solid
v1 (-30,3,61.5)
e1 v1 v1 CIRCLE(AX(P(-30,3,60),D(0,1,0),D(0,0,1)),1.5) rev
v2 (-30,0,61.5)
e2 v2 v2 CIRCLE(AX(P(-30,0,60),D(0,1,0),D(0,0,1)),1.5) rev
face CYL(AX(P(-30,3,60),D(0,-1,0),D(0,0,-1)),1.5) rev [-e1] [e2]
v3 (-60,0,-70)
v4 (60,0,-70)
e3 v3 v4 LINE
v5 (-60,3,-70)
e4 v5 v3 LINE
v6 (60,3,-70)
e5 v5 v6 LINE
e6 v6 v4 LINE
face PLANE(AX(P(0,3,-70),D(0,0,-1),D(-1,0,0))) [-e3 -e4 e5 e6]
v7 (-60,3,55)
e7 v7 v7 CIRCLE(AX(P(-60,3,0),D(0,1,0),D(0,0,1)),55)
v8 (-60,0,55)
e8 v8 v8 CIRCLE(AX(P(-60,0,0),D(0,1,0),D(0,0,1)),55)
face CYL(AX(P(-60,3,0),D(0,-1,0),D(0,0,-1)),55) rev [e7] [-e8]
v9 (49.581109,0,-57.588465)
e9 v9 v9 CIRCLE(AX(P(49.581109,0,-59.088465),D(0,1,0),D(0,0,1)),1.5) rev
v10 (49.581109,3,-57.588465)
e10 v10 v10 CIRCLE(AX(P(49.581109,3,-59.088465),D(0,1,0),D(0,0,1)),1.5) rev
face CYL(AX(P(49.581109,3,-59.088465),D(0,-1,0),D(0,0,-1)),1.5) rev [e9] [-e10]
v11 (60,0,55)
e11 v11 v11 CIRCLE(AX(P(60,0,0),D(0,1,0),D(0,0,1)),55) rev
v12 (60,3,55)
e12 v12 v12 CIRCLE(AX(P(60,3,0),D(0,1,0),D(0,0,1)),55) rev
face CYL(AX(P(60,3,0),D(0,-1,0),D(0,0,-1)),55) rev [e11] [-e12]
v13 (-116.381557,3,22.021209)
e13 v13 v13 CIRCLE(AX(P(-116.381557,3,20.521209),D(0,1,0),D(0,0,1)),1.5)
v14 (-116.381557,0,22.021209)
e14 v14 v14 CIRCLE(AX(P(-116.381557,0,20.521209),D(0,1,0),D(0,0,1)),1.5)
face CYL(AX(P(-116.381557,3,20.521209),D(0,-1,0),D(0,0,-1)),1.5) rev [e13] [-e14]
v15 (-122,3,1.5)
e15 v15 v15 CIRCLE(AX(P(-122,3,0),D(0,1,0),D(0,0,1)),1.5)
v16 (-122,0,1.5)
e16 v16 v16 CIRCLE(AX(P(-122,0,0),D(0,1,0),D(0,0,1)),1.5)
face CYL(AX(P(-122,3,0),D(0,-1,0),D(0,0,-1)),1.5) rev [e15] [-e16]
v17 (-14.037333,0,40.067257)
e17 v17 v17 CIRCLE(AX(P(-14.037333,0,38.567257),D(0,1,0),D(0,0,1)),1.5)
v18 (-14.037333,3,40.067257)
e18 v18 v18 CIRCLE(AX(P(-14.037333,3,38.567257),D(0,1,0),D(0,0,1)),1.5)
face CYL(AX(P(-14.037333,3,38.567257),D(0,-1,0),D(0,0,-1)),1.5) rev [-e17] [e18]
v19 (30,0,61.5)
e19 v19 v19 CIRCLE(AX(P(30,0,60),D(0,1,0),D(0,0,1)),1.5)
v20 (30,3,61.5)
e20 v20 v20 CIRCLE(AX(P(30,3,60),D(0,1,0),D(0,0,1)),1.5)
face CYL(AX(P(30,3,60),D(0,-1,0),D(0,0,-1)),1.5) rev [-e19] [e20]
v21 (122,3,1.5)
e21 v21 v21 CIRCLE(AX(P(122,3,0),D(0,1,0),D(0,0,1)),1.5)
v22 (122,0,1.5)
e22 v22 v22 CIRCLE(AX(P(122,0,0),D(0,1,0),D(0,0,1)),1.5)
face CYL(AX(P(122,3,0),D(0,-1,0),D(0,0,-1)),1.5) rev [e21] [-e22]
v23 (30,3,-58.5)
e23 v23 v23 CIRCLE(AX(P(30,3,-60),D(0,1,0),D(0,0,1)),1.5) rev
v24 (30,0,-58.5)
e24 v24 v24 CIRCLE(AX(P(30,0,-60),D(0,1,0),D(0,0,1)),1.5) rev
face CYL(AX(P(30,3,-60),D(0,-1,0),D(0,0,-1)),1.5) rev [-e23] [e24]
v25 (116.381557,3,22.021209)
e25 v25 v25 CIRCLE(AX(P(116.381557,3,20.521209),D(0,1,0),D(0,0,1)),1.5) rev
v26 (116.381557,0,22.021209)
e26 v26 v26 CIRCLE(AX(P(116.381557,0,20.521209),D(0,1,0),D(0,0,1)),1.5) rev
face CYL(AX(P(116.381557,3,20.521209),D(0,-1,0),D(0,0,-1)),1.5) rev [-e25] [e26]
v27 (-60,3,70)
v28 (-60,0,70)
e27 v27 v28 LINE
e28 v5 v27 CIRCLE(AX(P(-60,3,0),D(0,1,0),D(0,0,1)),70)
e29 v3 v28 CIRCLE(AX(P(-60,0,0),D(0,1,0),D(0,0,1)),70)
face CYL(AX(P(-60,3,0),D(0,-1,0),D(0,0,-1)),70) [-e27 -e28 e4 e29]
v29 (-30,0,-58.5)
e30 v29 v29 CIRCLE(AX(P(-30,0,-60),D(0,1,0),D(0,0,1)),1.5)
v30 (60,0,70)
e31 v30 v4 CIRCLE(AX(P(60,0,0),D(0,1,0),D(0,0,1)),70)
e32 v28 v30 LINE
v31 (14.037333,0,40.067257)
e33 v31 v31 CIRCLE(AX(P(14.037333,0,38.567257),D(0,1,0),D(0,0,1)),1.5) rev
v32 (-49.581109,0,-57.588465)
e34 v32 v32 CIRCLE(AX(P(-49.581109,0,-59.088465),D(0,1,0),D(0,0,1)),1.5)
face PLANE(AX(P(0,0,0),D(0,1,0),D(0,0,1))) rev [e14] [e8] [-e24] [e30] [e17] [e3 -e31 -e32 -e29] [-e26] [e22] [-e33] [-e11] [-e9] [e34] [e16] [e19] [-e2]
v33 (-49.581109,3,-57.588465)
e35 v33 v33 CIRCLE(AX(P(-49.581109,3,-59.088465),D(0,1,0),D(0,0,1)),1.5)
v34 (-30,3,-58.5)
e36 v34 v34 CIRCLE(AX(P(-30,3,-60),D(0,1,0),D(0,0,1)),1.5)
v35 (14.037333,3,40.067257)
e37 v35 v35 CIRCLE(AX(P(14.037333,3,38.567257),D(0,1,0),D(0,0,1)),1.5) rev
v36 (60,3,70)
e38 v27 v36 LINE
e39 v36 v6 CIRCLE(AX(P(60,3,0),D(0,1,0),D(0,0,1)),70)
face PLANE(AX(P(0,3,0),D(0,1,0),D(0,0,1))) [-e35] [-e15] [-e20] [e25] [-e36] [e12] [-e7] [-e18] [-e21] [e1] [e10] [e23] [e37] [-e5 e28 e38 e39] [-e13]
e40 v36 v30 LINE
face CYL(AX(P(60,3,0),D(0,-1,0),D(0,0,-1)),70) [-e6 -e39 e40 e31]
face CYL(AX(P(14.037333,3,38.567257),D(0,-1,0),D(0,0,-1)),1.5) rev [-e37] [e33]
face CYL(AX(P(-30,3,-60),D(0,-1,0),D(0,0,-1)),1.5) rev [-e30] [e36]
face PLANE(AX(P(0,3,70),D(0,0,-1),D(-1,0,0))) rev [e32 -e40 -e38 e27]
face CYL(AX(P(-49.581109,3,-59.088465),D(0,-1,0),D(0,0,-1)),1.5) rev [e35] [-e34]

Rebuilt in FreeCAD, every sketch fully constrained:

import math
import FreeCAD as App
import Part
import Sketcher

doc = App.newDocument("Part")
body = doc.addObject("PartDesign::Body", "Body")

sketch1 = body.newObject("Sketcher::SketchObject", "Sketch")
sketch1.AttachmentSupport = (doc.getObject("XZ_Plane"), [""])
sketch1.MapMode = "FlatFace"
sketch1.addGeometry([
    Part.LineSegment(App.Vector(60, -70, 0), App.Vector(-60, -70, 0)),
    Part.ArcOfCircle(Part.Circle(App.Vector(-60, 0, 0), App.Vector(0, 0, 1), 70), math.radians(90), math.radians(270)),
    Part.LineSegment(App.Vector(-60, 70, 0), App.Vector(60, 70, 0)),
    Part.ArcOfCircle(Part.Circle(App.Vector(60, 0, 0), App.Vector(0, 0, 1), 70), math.radians(-90), math.radians(90)),
    Part.Circle(App.Vector(30, 60, 0), App.Vector(0, 0, 1), 1.5),
    Part.Circle(App.Vector(14, 38.6, 0), App.Vector(0, 0, 1), 1.5),
    Part.Circle(App.Vector(116.4, 20.5, 0), App.Vector(0, 0, 1), 1.5),
    Part.Circle(App.Vector(-30, 60, 0), App.Vector(0, 0, 1), 1.5),
    Part.Circle(App.Vector(-14, 38.6, 0), App.Vector(0, 0, 1), 1.5),
    Part.Circle(App.Vector(-116.4, 20.5, 0), App.Vector(0, 0, 1), 1.5),
    Part.Circle(App.Vector(122, 0, 0), App.Vector(0, 0, 1), 1.5),
    Part.Circle(App.Vector(60, 0, 0), App.Vector(0, 0, 1), 55),
    Part.Circle(App.Vector(49.6, -59.1, 0), App.Vector(0, 0, 1), 1.5),
    Part.Circle(App.Vector(30, -60, 0), App.Vector(0, 0, 1), 1.5),
    Part.Circle(App.Vector(-60, 0, 0), App.Vector(0, 0, 1), 55),
    Part.Circle(App.Vector(-122, 0, 0), App.Vector(0, 0, 1), 1.5),
    Part.Circle(App.Vector(-30, -60, 0), App.Vector(0, 0, 1), 1.5),
    Part.Circle(App.Vector(-49.6, -59.1, 0), App.Vector(0, 0, 1), 1.5),
], False)
sketch1.addConstraint([
    Sketcher.Constraint("Tangent", 0, 2, 1, 2),
    Sketcher.Constraint("Tangent", 1, 1, 2, 1),
    Sketcher.Constraint("Tangent", 2, 2, 3, 2),
    Sketcher.Constraint("Tangent", 3, 1, 0, 1),
    Sketcher.Constraint("Horizontal", 0),
    Sketcher.Constraint("Horizontal", 2),
    Sketcher.Constraint("Coincident", 11, 3, 3, 3),
    Sketcher.Constraint("Coincident", 14, 3, 1, 3),
    Sketcher.Constraint("Equal", 4, 5),
    Sketcher.Constraint("Equal", 5, 6),
    Sketcher.Constraint("Equal", 6, 7),
    Sketcher.Constraint("Equal", 7, 8),
    Sketcher.Constraint("Equal", 8, 9),
    Sketcher.Constraint("Equal", 9, 10),
    Sketcher.Constraint("Equal", 10, 12),
    Sketcher.Constraint("Equal", 12, 13),
    Sketcher.Constraint("Equal", 11, 14),
    Sketcher.Constraint("Equal", 13, 15),
    Sketcher.Constraint("Equal", 15, 16),
    Sketcher.Constraint("Equal", 16, 17),
    Sketcher.Constraint("Symmetric", 1, 3, 3, 3, -1, 1),
    Sketcher.Constraint("Symmetric", 7, 3, 13, 3, -1, 1),
    Sketcher.Constraint("Symmetric", 10, 3, 15, 3, -1, 1),
    Sketcher.Constraint("Symmetric", 4, 3, 16, 3, -1, 1),
    Sketcher.Constraint("Symmetric", 4, 3, 7, 3, -2),
    Sketcher.Constraint("Symmetric", 5, 3, 8, 3, -2),
    Sketcher.Constraint("Symmetric", 6, 3, 9, 3, -2),
    Sketcher.Constraint("Symmetric", 12, 3, 17, 3, -2),
    Sketcher.Constraint("PointOnObject", 10, 3, -1),
    Sketcher.Constraint("Diameter", 4, 3.0),
    Sketcher.Constraint("Diameter", 11, 110.0),
    Sketcher.Constraint("Radius", 1, 70.0),
    Sketcher.Constraint("DistanceX", 0, 2, 0, 1, 120.0),
    Sketcher.Constraint("DistanceX", -1, 1, 4, 3, 30.0),
    Sketcher.Constraint("DistanceY", -1, 1, 4, 3, 60.0),
    Sketcher.Constraint("DistanceX", -1, 1, 10, 3, 122.0),
    Sketcher.Constraint("DistanceY", -1, 1, 6, 3, 20.521209),
    Sketcher.Constraint("DistanceX", -1, 1, 12, 3, 49.581109),
    Sketcher.Constraint("DistanceX", 9, 3, 5, 3, 130.418891),
    Sketcher.Constraint("DistanceY", 12, 3, 5, 3, 97.655722),
    Sketcher.Constraint("DistanceX", -1, 1, 5, 3, 14.037333),
    Sketcher.Constraint("DistanceY", -1, 1, 5, 3, 38.567257),
])
pad1 = body.newObject("PartDesign::Pad", "Pad")
pad1.Profile = sketch1
pad1.Length = 3
pad1.Reversed = True

doc.recompute()
